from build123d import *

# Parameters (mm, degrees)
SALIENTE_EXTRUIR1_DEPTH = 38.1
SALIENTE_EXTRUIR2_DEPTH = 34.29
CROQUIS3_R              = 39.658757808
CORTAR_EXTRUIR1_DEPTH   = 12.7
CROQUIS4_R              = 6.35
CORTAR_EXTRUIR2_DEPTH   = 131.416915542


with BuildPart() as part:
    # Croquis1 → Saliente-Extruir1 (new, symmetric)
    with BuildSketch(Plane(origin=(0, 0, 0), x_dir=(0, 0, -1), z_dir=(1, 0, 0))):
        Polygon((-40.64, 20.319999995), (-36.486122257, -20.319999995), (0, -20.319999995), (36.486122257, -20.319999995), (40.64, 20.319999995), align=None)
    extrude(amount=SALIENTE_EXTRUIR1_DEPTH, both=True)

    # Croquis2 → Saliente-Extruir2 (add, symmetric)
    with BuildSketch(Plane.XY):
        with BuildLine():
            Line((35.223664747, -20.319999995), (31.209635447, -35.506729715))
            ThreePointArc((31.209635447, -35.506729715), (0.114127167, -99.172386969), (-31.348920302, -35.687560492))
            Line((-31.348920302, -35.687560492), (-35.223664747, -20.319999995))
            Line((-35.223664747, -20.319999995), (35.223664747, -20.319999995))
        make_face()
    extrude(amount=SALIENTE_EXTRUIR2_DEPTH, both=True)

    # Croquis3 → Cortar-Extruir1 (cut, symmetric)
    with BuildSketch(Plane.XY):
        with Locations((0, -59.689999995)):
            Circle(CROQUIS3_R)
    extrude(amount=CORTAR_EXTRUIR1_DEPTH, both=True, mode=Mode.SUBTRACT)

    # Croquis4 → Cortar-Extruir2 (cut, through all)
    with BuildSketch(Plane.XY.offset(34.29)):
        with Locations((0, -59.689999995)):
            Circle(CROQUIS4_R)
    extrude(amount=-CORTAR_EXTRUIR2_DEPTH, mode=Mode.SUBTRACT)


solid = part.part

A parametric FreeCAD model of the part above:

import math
import FreeCAD as App
import Part
import Sketcher

V = App.Vector
Q = App.Units.Quantity

doc = App.newDocument("Part")
body = doc.addObject("PartDesign::Body", "Body")

sketch1 = doc.addObject("Sketcher::SketchObject", "Sketch")
body.addObject(sketch1)
sketch1.AttachmentSupport = (doc.YZ_Plane, [""])
sketch1.MapMode = "FlatFace"
sketch1.addGeometry([
    Part.LineSegment(V(20, 41, 0), V(-20, 36, 0)),
    Part.LineSegment(V(-20, 36, 0), V(-20, -36, 0)),
    Part.LineSegment(V(-20, -36, 0), V(20, -41, 0)),
    Part.LineSegment(V(20, -41, 0), V(20, 41, 0)),
], False)
sketch1.addConstraint([
    Sketcher.Constraint("Coincident", 0, 2, 1, 1),
    Sketcher.Constraint("Coincident", 1, 2, 2, 1),
    Sketcher.Constraint("Coincident", 2, 2, 3, 1),
    Sketcher.Constraint("Coincident", 3, 2, 0, 1),
    Sketcher.Constraint("Vertical", 1),
    Sketcher.Constraint("Vertical", 3),
    Sketcher.Constraint("Equal", 0, 2),
    Sketcher.Constraint("DistanceY", 3, 1, 3, 2, Q("3.2 in")),
    Sketcher.Constraint("DistanceX", 0, 2, -1, 1, Q("0.8 in")),
    Sketcher.Constraint("DistanceX", -1, 1, 2, 2, Q("0.8 in")),
    Sketcher.Constraint("DistanceY", 2, 2, -1, 1, Q("1.6 in")),
    Sketcher.Constraint("DistanceY", 1, 2, 1, 1, Q("72.972245 mm")),
])
pad1 = doc.addObject("PartDesign::Pad", "Pad")
body.addObject(pad1)
pad1.Profile = sketch1
pad1.Length = Q("3 in")
pad1.Midplane = True

sketch2 = doc.addObject("Sketcher::SketchObject", "Sketch001")
body.addObject(sketch2)
sketch2.AttachmentSupport = (doc.XY_Plane, [""])
sketch2.MapMode = "FlatFace"
sketch2.addGeometry([
    Part.LineSegment(V(31, -36, 0), V(35, -20, 0)),
    Part.LineSegment(V(35, -20, 0), V(-35, -20, 0)),
    Part.LineSegment(V(-35, -20, 0), V(-31, -36, 0)),
    Part.ArcOfCircle(Part.Circle(V(0, -60, 0), V(0, 0, 1), 39), math.radians(143), math.radians(398)),
], False)
sketch2.addConstraint([
    Sketcher.Constraint("Coincident", 0, 2, 1, 1),
    Sketcher.Constraint("Coincident", 1, 2, 2, 1),
    Sketcher.Constraint("Coincident", 2, 2, 3, 1),
    Sketcher.Constraint("Coincident", 3, 2, 0, 1),
    Sketcher.Constraint("Horizontal", 1),
    Sketcher.Constraint("PointOnObject", 3, 3, -2),
    Sketcher.Constraint("DistanceY", 0, 2, -1, 1, Q("0.8 in")),
    Sketcher.Constraint("DistanceY", 3, 3, -1, 1, Q("2.35 in")),
    Sketcher.Constraint("Radius", 3, Q("39.482552 mm")),
    Sketcher.Constraint("DistanceX", 1, 2, 1, 1, Q("70.447329 mm")),
    Sketcher.Constraint("DistanceX", 1, 2, 3, 2, Q("66.4333 mm")),
    Sketcher.Constraint("Distance", 2, Q("15.848519 mm")),
    Sketcher.Constraint("DistanceX", 2, 2, -1, 1, Q("31.34892 mm")),
])
pad2 = doc.addObject("PartDesign::Pad", "Pad001")
body.addObject(pad2)
pad2.Profile = sketch2
pad2.Length = Q("2.7 in")
pad2.Midplane = True

sketch3 = doc.addObject("Sketcher::SketchObject", "Sketch002")
body.addObject(sketch3)
sketch3.AttachmentSupport = (doc.XY_Plane, [""])
sketch3.MapMode = "FlatFace"
sketch3.addGeometry(Part.Circle(V(0, -60, 0), V(0, 0, 1), 40), False)
sketch3.addConstraint([
    Sketcher.Constraint("PointOnObject", 0, 3, -2),
    Sketcher.Constraint("DistanceY", 0, 3, -1, 1, Q("2.35 in")),
    Sketcher.Constraint("Diameter", 0, Q("79.317516 mm")),
])
pocket1 = doc.addObject("PartDesign::Pocket", "Pocket")
body.addObject(pocket1)
pocket1.Profile = sketch3
pocket1.Length = Q("1 in")
pocket1.Midplane = True

sketch4 = doc.addObject("Sketcher::SketchObject", "Sketch003")
body.addObject(sketch4)
sketch4.AttachmentSupport = (doc.XY_Plane, [""])
sketch4.MapMode = "FlatFace"
sketch4.AttachmentOffset = App.Placement(V(0, 0, 1.35 * 25.4), App.Rotation())
sketch4.addGeometry(Part.Circle(V(0, -60, 0), V(0, 0, 1), 6), False)
sketch4.addConstraint([
    Sketcher.Constraint("PointOnObject", 0, 3, -2),
    Sketcher.Constraint("Diameter", 0, Q("0.5 in")),
    Sketcher.Constraint("DistanceY", 0, 3, -1, 1, Q("2.35 in")),
])
pocket2 = doc.addObject("PartDesign::Pocket", "Pocket001")
body.addObject(pocket2)
pocket2.Profile = sketch4
pocket2.Type = "ThroughAll"

doc.recompute()
